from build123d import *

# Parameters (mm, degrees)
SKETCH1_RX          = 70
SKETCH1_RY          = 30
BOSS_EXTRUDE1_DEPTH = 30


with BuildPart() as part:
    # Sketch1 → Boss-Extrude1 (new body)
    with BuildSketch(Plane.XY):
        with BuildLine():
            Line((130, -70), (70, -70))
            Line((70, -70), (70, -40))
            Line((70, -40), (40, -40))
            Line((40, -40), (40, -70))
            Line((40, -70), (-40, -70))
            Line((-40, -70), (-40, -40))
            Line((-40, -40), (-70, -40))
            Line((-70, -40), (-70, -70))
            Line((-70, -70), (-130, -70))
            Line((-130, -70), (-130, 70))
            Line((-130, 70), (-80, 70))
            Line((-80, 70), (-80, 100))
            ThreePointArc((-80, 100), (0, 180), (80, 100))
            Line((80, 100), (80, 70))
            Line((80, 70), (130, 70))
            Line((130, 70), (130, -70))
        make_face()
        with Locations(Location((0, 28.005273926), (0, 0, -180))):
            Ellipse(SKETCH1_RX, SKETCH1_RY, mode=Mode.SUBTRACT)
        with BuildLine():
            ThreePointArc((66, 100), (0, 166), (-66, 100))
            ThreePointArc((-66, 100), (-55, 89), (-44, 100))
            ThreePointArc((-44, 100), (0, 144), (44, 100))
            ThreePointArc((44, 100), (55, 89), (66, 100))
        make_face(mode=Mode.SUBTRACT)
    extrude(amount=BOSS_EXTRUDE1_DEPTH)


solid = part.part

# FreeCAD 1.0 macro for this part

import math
import FreeCAD as App
import Part
import Sketcher

V = App.Vector

doc = App.newDocument("Part")
body = doc.addObject("PartDesign::Body", "Body")

# Sketch on XY plane
sketch1 = body.newObject("Sketcher::SketchObject", "Sketch")
sketch1.AttachmentSupport = (doc.getObject("XY_Plane"), [""])
sketch1.MapMode = "FlatFace"
sketch1.addGeometry(Part.LineSegment(V(70, -70, 0), V(130, -70, 0)), False)
sketch1.addGeometry(Part.LineSegment(V(130, -70, 0), V(130, 70, 0)), False)
sketch1.addGeometry(Part.LineSegment(V(130, 70, 0), V(80, 70, 0)), False)
sketch1.addGeometry(Part.LineSegment(V(80, 70, 0), V(80, 100, 0)), False)
sketch1.addGeometry(Part.ArcOfCircle(Part.Circle(V(0, 100, 0), V(0, 0, 1), 80), math.radians(0), math.radians(180)), False)
sketch1.addGeometry(Part.LineSegment(V(-80, 100, 0), V(-80, 70, 0)), False)
sketch1.addGeometry(Part.LineSegment(V(-80, 70, 0), V(-130, 70, 0)), False)
sketch1.addGeometry(Part.LineSegment(V(-130, 70, 0), V(-130, -70, 0)), False)
sketch1.addGeometry(Part.LineSegment(V(-130, -70, 0), V(-70, -70, 0)), False)
sketch1.addGeometry(Part.LineSegment(V(-70, -70, 0), V(-70, -40, 0)), False)
sketch1.addGeometry(Part.LineSegment(V(-70, -40, 0), V(-40, -40, 0)), False)
sketch1.addGeometry(Part.LineSegment(V(-40, -40, 0), V(-40, -70, 0)), False)
sketch1.addGeometry(Part.LineSegment(V(-40, -70, 0), V(40, -70, 0)), False)
sketch1.addGeometry(Part.LineSegment(V(40, -70, 0), V(40, -40, 0)), False)
sketch1.addGeometry(Part.LineSegment(V(40, -40, 0), V(70, -40, 0)), False)
sketch1.addGeometry(Part.LineSegment(V(70, -40, 0), V(70, -70, 0)), False)
sketch1.addGeometry(Part.Ellipse(V(-70, 28.005274, 0), V(0, -1.994726, 0), V(0, 28.005274, 0)), False)
sketch1.addGeometry(Part.ArcOfCircle(Part.Circle(V(55, 100, 0), V(0, 0, 1), 11), math.radians(180), math.radians(360)), False)
sketch1.addGeometry(Part.ArcOfCircle(Part.Circle(V(0, 100, 0), V(0, 0, 1), 44), math.radians(0), math.radians(180)), False)
sketch1.addGeometry(Part.ArcOfCircle(Part.Circle(V(-55, 100, 0), V(0, 0, 1), 11), math.radians(180), math.radians(360)), False)
sketch1.addGeometry(Part.ArcOfCircle(Part.Circle(V(0, 100, 0), V(0, 0, 1), 66), math.radians(0), math.radians(180)), False)
sketch1.addConstraint(Sketcher.Constraint("Block", 16))
sketch1.addConstraint(Sketcher.Constraint("Coincident", 0, 2, 1, 1))
sketch1.addConstraint(Sketcher.Constraint("Coincident", 1, 2, 2, 1))
sketch1.addConstraint(Sketcher.Constraint("Coincident", 2, 2, 3, 1))
sketch1.addConstraint(Sketcher.Constraint("Tangent", 3, 2, 4, 1))
sketch1.addConstraint(Sketcher.Constraint("Tangent", 4, 2, 5, 1))
sketch1.addConstraint(Sketcher.Constraint("Coincident", 5, 2, 6, 1))
sketch1.addConstraint(Sketcher.Constraint("Coincident", 6, 2, 7, 1))
sketch1.addConstraint(Sketcher.Constraint("Coincident", 7, 2, 8, 1))
sketch1.addConstraint(Sketcher.Constraint("Coincident", 8, 2, 9, 1))
sketch1.addConstraint(Sketcher.Constraint("Coincident", 9, 2, 10, 1))
sketch1.addConstraint(Sketcher.Constraint("Coincident", 10, 2, 11, 1))
sketch1.addConstraint(Sketcher.Constraint("Coincident", 11, 2, 12, 1))
sketch1.addConstraint(Sketcher.Constraint("Coincident", 12, 2, 13, 1))
sketch1.addConstraint(Sketcher.Constraint("Coincident", 13, 2, 14, 1))
sketch1.addConstraint(Sketcher.Constraint("Coincident", 14, 2, 15, 1))
sketch1.addConstraint(Sketcher.Constraint("Coincident", 15, 2, 0, 1))
sketch1.addConstraint(Sketcher.Constraint("Tangent", 17, 1, 18, 1))
sketch1.addConstraint(Sketcher.Constraint("Tangent", 18, 2, 19, 2))
sketch1.addConstraint(Sketcher.Constraint("Tangent", 19, 1, 20, 2))
sketch1.addConstraint(Sketcher.Constraint("Tangent", 20, 1, 17, 2))
sketch1.addConstraint(Sketcher.Constraint("Horizontal", 0))
sketch1.addConstraint(Sketcher.Constraint("Vertical", 1))
sketch1.addConstraint(Sketcher.Constraint("Horizontal", 2))
sketch1.addConstraint(Sketcher.Constraint("Vertical", 3))
sketch1.addConstraint(Sketcher.Constraint("Vertical", 5))
sketch1.addConstraint(Sketcher.Constraint("Horizontal", 6))
sketch1.addConstraint(Sketcher.Constraint("Vertical", 7))
sketch1.addConstraint(Sketcher.Constraint("Horizontal", 8))
sketch1.addConstraint(Sketcher.Constraint("Vertical", 9))
sketch1.addConstraint(Sketcher.Constraint("Horizontal", 10))
sketch1.addConstraint(Sketcher.Constraint("Vertical", 11))
sketch1.addConstraint(Sketcher.Constraint("Horizontal", 12))
sketch1.addConstraint(Sketcher.Constraint("Vertical", 13))
sketch1.addConstraint(Sketcher.Constraint("Horizontal", 14))
sketch1.addConstraint(Sketcher.Constraint("Vertical", 15))
sketch1.addConstraint(Sketcher.Constraint("Coincident", 18, 3, 4, 3))
sketch1.addConstraint(Sketcher.Constraint("Coincident", 20, 3, 4, 3))
sketch1.addConstraint(Sketcher.Constraint("Symmetric", 0, 2, 6, 2, -1, 1))
sketch1.addConstraint(Sketcher.Constraint("Symmetric", 17, 3, 19, 3, -2))
sketch1.addConstraint(Sketcher.Constraint("Symmetric", 10, 2, 13, 2, -2))
sketch1.addConstraint(Sketcher.Constraint("Symmetric", 8, 2, 15, 2, -2))
sketch1.addConstraint(Sketcher.Constraint("Horizontal", 4, 3, 17, 3))
sketch1.addConstraint(Sketcher.Constraint("Horizontal", 2, 2, 5, 2))
sketch1.addConstraint(Sketcher.Constraint("Horizontal", 8, 2, 11, 2))
sketch1.addConstraint(Sketcher.Constraint("Equal", 14, 3))
sketch1.addConstraint(Sketcher.Constraint("Equal", 5, 9))
sketch1.addConstraint(Sketcher.Constraint("Radius", 4, 80.0))
sketch1.addConstraint(Sketcher.Constraint("Radius", 17, 11.0))
sketch1.addConstraint(Sketcher.Constraint("Radius", 18, 44.0))
sketch1.addConstraint(Sketcher.Constraint("DistanceX", 0, 1, 0, 2, 60.0))
sketch1.addConstraint(Sketcher.Constraint("DistanceX", 2, 2, 2, 1, 50.0))
sketch1.addConstraint(Sketcher.Constraint("DistanceX", 10, 1, 10, 2, 30.0))
sketch1.addConstraint(Sketcher.Constraint("DistanceY", 1, 1, 1, 2, 140.0))
pad1 = body.newObject("PartDesign::Pad", "Pad")
pad1.Profile = sketch1
pad1.Length = 30

doc.recompute()
